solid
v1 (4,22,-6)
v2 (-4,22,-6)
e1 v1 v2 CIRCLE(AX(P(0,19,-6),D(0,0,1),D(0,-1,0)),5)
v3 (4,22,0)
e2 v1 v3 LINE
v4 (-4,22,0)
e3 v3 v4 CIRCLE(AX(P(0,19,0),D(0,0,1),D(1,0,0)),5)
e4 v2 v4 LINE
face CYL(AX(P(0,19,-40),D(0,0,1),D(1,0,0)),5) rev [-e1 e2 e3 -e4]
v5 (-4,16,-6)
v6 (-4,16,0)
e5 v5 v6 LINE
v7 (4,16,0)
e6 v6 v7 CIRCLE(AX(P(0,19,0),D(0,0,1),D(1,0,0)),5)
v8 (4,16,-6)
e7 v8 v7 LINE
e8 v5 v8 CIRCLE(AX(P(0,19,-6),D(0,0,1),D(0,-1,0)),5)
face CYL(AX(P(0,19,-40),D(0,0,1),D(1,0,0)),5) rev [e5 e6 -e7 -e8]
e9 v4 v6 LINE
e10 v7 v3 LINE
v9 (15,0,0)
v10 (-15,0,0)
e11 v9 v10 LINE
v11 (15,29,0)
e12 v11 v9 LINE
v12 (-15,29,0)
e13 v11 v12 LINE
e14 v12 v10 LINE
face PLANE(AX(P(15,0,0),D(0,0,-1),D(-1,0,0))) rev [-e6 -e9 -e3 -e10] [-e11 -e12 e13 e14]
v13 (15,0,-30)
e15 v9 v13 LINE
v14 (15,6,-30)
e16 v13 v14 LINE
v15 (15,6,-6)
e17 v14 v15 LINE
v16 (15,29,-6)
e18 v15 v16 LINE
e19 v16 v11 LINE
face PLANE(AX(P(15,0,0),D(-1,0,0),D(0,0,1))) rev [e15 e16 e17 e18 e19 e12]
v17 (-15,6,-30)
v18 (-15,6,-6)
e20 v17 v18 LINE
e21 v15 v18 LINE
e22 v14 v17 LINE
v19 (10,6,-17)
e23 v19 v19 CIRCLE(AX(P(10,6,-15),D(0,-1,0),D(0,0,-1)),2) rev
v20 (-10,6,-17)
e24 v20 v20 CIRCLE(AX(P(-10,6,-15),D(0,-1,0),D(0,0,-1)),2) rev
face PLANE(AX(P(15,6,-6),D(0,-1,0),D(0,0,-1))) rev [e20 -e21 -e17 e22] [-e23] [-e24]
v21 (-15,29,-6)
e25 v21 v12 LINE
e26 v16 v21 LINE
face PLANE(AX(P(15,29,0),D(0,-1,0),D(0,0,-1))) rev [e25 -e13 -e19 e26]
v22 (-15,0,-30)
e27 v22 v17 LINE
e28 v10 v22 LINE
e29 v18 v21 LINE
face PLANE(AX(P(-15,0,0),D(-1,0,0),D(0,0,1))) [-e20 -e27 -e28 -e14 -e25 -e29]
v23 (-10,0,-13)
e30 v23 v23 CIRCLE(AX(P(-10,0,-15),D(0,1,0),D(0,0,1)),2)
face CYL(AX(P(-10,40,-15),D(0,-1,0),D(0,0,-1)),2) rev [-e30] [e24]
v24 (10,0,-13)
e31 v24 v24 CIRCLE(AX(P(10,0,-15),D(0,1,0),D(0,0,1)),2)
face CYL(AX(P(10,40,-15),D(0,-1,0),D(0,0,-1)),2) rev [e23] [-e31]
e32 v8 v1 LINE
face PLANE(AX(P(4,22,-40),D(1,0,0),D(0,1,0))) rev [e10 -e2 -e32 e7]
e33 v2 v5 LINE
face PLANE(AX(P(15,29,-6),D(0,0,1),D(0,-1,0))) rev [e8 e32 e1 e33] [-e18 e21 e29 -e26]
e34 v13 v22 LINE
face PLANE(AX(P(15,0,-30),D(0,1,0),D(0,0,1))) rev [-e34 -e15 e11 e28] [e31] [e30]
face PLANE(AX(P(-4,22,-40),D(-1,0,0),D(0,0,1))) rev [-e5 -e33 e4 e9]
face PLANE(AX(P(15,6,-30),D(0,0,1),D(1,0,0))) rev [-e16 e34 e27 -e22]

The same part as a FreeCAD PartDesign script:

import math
import FreeCAD as App
import Part
import Sketcher

V = App.Vector


def add_polygon(sketch, points):
    """Adds a closed chain of lines whose ends are joined by coincident constraints."""
    first, n = sketch.GeometryCount, len(points)
    for a, b in zip(points, points[1:] + points[:1]):
        sketch.addGeometry(Part.LineSegment(App.Vector(*a, 0), App.Vector(*b, 0)), False)
    for i in range(n):
        sketch.addConstraint(Sketcher.Constraint("Coincident", first + i, 2, first + (i + 1) % n, 1))

doc = App.newDocument("Part")
body = doc.addObject("PartDesign::Body", "Body")

sketch1 = body.newObject("Sketcher::SketchObject", "Sketch")
sketch1.AttachmentSupport = (doc.getObject("YZ_Plane"), [""])
sketch1.MapMode = "FlatFace"
add_polygon(sketch1, [(29, 0), (0, 0), (0, -30), (6, -30), (6, -6), (29, -6)])
sketch1.addConstraint(Sketcher.Constraint("Horizontal", 0))
sketch1.addConstraint(Sketcher.Constraint("Vertical", 1))
sketch1.addConstraint(Sketcher.Constraint("Horizontal", 2))
sketch1.addConstraint(Sketcher.Constraint("Vertical", 3))
sketch1.addConstraint(Sketcher.Constraint("Horizontal", 4))
sketch1.addConstraint(Sketcher.Constraint("Vertical", 5))
sketch1.addConstraint(Sketcher.Constraint("Coincident", 0, 2, -1, 1))
sketch1.addConstraint(Sketcher.Constraint("Equal", 2, 5))
sketch1.addConstraint(Sketcher.Constraint("DistanceX", 0, 2, 0, 1, 29.0))
sketch1.addConstraint(Sketcher.Constraint("DistanceX", 2, 1, 2, 2, 6.0))
sketch1.addConstraint(Sketcher.Constraint("DistanceY", 1, 2, 1, 1, 30.0))
pad1 = body.newObject("PartDesign::Pad", "Pad")
pad1.Profile = sketch1
pad1.Length = 30
pad1.Midplane = True

sketch2 = body.newObject("Sketcher::SketchObject", "Sketch001")
sketch2.AttachmentSupport = (doc.getObject("XZ_Plane"), [""])
sketch2.MapMode = "FlatFace"
sketch2.addGeometry(Part.Circle(V(-10, -15, 0), V(0, 0, 1), 2), False)
sketch2.addGeometry(Part.Circle(V(10, -15, 0), V(0, 0, 1), 2), False)
sketch2.addConstraint(Sketcher.Constraint("Equal", 0, 1))
sketch2.addConstraint(Sketcher.Constraint("Symmetric", 0, 3, 1, 3, -2))
sketch2.addConstraint(Sketcher.Constraint("Diameter", 0, 4.0))
sketch2.addConstraint(Sketcher.Constraint("DistanceX", 0, 3, -1, 1, 10.0))
sketch2.addConstraint(Sketcher.Constraint("DistanceY", 0, 3, -1, 1, 15.0))
pocket1 = body.newObject("PartDesign::Pocket", "Pocket")
pocket1.Profile = sketch2
pocket1.Length = 40

sketch3 = body.newObject("Sketcher::SketchObject", "Sketch002")
sketch3.AttachmentSupport = (doc.getObject("XY_Plane"), [""])
sketch3.MapMode = "FlatFace"
sketch3.addGeometry(Part.LineSegment(V(-4, 22, 0), V(-4, 16, 0)), False)
sketch3.addGeometry(Part.ArcOfCircle(Part.Circle(V(0, 19, 0), V(0, 0, 1), 5), math.radians(-143), math.radians(-37)), False)
sketch3.addGeometry(Part.LineSegment(V(4, 16, 0), V(4, 22, 0)), False)
sketch3.addGeometry(Part.ArcOfCircle(Part.Circle(V(0, 19, 0), V(0, 0, 1), 5), math.radians(37), math.radians(143)), False)
sketch3.addConstraint(Sketcher.Constraint("Coincident", 0, 2, 1, 1))
sketch3.addConstraint(Sketcher.Constraint("Coincident", 1, 2, 2, 1))
sketch3.addConstraint(Sketcher.Constraint("Coincident", 2, 2, 3, 1))
sketch3.addConstraint(Sketcher.Constraint("Coincident", 3, 2, 0, 1))
sketch3.addConstraint(Sketcher.Constraint("Vertical", 0))
sketch3.addConstraint(Sketcher.Constraint("Vertical", 2))
sketch3.addConstraint(Sketcher.Constraint("Coincident", 3, 3, 1, 3))
sketch3.addConstraint(Sketcher.Constraint("Equal", 1, 3))
sketch3.addConstraint(Sketcher.Constraint("Symmetric", 0, 2, 1, 2, -2))
sketch3.addConstraint(Sketcher.Constraint("Radius", 1, 5.0))
sketch3.addConstraint(Sketcher.Constraint("DistanceY", 0, 2, 0, 1, 6.0))
sketch3.addConstraint(Sketcher.Constraint("DistanceY", -1, 1, 1, 3, 19.0))
pocket2 = body.newObject("PartDesign::Pocket", "Pocket001")
pocket2.Profile = sketch3
pocket2.Length = 40

doc.recompute()
